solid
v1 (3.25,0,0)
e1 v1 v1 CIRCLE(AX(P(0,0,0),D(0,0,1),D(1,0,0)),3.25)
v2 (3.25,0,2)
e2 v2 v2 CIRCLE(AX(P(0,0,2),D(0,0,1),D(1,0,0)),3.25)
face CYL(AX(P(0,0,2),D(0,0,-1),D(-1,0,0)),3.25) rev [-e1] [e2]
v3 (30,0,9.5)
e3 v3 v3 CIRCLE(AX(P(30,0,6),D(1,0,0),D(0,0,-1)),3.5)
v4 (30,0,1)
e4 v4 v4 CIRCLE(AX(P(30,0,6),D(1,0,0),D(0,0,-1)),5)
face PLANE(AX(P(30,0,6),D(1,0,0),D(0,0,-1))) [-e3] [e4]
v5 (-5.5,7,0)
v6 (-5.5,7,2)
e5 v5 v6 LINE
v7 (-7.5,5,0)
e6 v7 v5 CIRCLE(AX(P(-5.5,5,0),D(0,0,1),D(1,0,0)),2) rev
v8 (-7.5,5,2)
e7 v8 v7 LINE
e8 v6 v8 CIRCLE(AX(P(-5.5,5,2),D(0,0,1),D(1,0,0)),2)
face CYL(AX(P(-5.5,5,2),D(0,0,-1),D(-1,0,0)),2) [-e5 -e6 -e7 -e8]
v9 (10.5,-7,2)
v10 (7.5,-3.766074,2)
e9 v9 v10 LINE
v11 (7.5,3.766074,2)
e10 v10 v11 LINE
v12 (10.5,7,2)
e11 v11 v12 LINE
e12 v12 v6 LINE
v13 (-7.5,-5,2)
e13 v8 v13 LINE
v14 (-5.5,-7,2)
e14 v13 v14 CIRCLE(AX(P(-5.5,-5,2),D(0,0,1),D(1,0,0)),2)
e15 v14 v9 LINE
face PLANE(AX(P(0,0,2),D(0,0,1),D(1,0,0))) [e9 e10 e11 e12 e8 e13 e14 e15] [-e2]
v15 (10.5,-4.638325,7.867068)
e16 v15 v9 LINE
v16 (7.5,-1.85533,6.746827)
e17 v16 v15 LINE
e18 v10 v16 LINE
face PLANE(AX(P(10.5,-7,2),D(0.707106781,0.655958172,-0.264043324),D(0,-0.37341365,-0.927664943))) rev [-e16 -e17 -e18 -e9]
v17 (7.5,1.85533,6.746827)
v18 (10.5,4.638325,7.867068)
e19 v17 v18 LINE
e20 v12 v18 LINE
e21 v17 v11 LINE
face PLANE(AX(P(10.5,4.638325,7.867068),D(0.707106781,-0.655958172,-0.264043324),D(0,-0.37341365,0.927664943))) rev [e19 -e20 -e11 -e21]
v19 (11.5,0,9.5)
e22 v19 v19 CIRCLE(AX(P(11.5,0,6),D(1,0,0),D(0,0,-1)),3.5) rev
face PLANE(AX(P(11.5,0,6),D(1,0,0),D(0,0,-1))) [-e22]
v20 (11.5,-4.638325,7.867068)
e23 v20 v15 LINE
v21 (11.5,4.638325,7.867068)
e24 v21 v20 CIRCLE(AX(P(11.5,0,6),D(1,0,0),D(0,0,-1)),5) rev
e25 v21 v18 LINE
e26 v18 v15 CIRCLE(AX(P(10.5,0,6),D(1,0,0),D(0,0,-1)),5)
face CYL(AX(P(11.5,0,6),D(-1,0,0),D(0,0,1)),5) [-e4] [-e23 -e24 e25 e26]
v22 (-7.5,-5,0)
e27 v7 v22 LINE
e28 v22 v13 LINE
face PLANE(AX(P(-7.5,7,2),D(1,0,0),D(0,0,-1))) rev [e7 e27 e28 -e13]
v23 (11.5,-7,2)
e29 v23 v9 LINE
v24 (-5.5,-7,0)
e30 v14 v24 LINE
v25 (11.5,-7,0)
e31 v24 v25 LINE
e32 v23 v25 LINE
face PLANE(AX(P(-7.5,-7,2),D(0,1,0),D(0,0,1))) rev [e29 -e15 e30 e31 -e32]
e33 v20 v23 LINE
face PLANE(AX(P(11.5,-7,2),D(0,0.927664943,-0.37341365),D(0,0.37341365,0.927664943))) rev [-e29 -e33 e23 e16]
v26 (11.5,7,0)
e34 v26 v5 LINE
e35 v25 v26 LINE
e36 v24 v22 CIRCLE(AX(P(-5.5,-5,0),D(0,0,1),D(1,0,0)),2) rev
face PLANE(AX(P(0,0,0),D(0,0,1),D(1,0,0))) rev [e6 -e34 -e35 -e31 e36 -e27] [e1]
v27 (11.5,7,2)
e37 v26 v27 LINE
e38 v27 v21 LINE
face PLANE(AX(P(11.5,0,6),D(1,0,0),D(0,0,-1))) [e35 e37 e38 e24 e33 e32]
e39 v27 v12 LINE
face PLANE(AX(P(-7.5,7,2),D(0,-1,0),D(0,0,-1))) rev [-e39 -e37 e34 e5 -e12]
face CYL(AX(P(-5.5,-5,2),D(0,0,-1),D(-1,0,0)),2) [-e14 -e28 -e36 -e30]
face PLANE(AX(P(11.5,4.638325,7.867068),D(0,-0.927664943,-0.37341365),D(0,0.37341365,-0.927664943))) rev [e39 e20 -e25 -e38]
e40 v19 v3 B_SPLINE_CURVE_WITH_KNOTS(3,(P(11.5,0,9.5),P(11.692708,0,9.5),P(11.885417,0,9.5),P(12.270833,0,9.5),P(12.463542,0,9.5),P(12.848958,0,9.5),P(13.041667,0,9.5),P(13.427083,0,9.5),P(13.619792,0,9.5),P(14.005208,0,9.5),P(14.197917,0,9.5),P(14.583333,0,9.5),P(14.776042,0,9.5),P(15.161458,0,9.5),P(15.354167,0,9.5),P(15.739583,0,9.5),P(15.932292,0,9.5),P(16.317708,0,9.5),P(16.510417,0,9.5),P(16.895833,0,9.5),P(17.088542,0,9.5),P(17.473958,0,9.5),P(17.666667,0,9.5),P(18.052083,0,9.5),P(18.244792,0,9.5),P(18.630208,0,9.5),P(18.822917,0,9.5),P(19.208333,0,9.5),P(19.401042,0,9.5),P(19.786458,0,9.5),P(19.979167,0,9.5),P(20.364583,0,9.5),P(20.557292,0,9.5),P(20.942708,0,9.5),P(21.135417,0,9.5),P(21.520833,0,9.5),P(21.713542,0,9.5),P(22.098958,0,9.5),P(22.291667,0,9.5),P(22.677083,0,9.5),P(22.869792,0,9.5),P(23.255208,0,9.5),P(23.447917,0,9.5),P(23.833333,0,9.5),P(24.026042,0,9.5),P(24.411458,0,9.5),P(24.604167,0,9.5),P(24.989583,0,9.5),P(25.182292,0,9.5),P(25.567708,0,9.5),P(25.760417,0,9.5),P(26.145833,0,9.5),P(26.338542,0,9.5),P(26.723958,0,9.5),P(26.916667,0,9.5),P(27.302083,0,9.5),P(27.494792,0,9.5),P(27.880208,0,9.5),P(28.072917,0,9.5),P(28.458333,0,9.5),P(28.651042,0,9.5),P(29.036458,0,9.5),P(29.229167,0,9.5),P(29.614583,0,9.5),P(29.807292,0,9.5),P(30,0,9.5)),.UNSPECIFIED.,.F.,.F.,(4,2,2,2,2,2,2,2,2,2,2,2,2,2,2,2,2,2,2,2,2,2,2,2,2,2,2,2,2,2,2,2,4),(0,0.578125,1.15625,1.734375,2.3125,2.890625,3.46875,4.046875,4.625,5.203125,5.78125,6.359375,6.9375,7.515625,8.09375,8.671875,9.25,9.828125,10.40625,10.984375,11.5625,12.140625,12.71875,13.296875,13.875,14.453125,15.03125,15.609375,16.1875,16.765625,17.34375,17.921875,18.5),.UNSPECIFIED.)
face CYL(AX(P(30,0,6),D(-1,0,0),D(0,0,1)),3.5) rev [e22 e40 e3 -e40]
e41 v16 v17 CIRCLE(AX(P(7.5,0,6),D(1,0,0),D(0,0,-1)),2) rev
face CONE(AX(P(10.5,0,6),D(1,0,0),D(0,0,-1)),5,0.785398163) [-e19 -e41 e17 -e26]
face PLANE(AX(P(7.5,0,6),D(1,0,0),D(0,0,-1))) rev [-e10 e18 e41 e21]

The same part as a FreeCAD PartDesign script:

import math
import FreeCAD as App
import Part
import Sketcher
Q = App.Units.Quantity


def edges_at(feature, points):
    """Names of the edges that pass closest to the given points."""
    edges = feature.Shape.Edges
    near = lambda p: min(range(len(edges)), key=lambda i: edges[i].distToShape(Part.Vertex(*p))[0])
    return sorted({f"Edge{near(p) + 1}" for p in points})

doc = App.newDocument("Part")
params = doc.addObject("Spreadsheet::Sheet", "Params")
for row, (alias, value) in enumerate([
    ("sketch1_diameter", "6.5 mm"),
    ("sketch1_width", "15 mm"),
    ("sketch1_height", "14 mm"),
    ("pad1_length", "2 mm"),
    ("sketch2_diameter", "10 mm"),
    ("sketch2_diameter2", "7 mm"),
    ("pad2_length", "22.5 mm"),
    ("sketch3_radius", "5 mm"),
    ("sketch3_width", "14 mm"),
    ("sketch3_height", "2 mm"),
    ("pad3_length", "4 mm"),
    ("chamfer_size", "3 mm"),
    ("fillet_radius", "2 mm"),
], start=1):
    params.set(f"A{row}", alias)
    params.set(f"B{row}", "=" + value)
    params.setAlias(f"B{row}", alias)

body = doc.addObject("PartDesign::Body", "Body")

sketch1 = body.newObject("Sketcher::SketchObject", "Sketch")
sketch1.AttachmentSupport = (doc.getObject("XY_Plane"), [""])
sketch1.MapMode = "FlatFace"
sketch1.addGeometry([
    Part.LineSegment(App.Vector(-7.5, 7, 0), App.Vector(-7.5, -7, 0)),
    Part.LineSegment(App.Vector(-7.5, -7, 0), App.Vector(7.5, -7, 0)),
    Part.LineSegment(App.Vector(7.5, -7, 0), App.Vector(7.5, 7, 0)),
    Part.LineSegment(App.Vector(7.5, 7, 0), App.Vector(-7.5, 7, 0)),
    Part.Circle(App.Vector(0, 0, 0), App.Vector(0, 0, 1), 3.25),
], False)
sketch1.addConstraint([
    Sketcher.Constraint("Coincident", 0, 2, 1, 1),
    Sketcher.Constraint("Coincident", 1, 2, 2, 1),
    Sketcher.Constraint("Coincident", 2, 2, 3, 1),
    Sketcher.Constraint("Coincident", 3, 2, 0, 1),
    Sketcher.Constraint("Vertical", 0),
    Sketcher.Constraint("Horizontal", 1),
    Sketcher.Constraint("Vertical", 2),
    Sketcher.Constraint("Horizontal", 3),
    Sketcher.Constraint("Coincident", 4, 3, -1, 1),
    Sketcher.Constraint("Symmetric", 0, 2, 2, 2, -1, 1),
    Sketcher.Constraint("Diameter", 4, Q("6.5 mm")),
    Sketcher.Constraint("DistanceX", 1, 1, 1, 2, Q("15 mm")),
    Sketcher.Constraint("DistanceY", 0, 2, 0, 1, Q("14 mm")),
])
sketch1.setExpression("Constraints[10]", "Params.sketch1_diameter")
sketch1.setExpression("Constraints[11]", "Params.sketch1_width")
sketch1.setExpression("Constraints[12]", "Params.sketch1_height")
pad1 = body.newObject("PartDesign::Pad", "Pad")
pad1.Profile = sketch1
pad1.setExpression("Length", "Params.pad1_length")
body2 = doc.addObject("PartDesign::Body", "Body001")

sketch2 = body2.newObject("Sketcher::SketchObject", "Sketch001")
sketch2.AttachmentSupport = (doc.getObject("YZ_Plane001"), [""])
sketch2.MapMode = "FlatFace"
sketch2.AttachmentOffset = App.Placement(App.Vector(0, 0, 7.5), App.Rotation())
sketch2.addGeometry([
    Part.Circle(App.Vector(0, 6, 0), App.Vector(0, 0, 1), 5),
    Part.Circle(App.Vector(0, 6, 0), App.Vector(0, 0, 1), 3.5),
], False)
sketch2.addConstraint([
    Sketcher.Constraint("Coincident", 1, 3, 0, 3),
    Sketcher.Constraint("PointOnObject", 0, 3, -2),
    Sketcher.Constraint("Diameter", 0, Q("10 mm")),
    Sketcher.Constraint("Diameter", 1, Q("7 mm")),
    Sketcher.Constraint("DistanceY", -1, 1, 0, 3, Q("6 mm")),
])
sketch2.setExpression("Constraints[2]", "Params.sketch2_diameter")
sketch2.setExpression("Constraints[3]", "Params.sketch2_diameter2")
pad2 = body2.newObject("PartDesign::Pad", "Pad001")
pad2.Profile = sketch2
pad2.setExpression("Length", "Params.pad2_length")
doc.recompute()

boolean = body.newObject("PartDesign::Boolean", "Boolean")
boolean.Type = "Fuse"
boolean.addObjects([body2])

sketch3 = body.newObject("Sketcher::SketchObject", "Sketch002")
sketch3.AttachmentSupport = (doc.getObject("YZ_Plane"), [""])
sketch3.MapMode = "FlatFace"
sketch3.AttachmentOffset = App.Placement(App.Vector(0, 0, 7.5), App.Rotation())
sketch3.addGeometry([
    Part.LineSegment(App.Vector(7, 2, 0), App.Vector(4.638325, 7.867068, 0)),
    Part.ArcOfCircle(Part.Circle(App.Vector(0, 6, 0), App.Vector(0, 0, 1), 5), math.radians(21.926301), math.radians(158.073699)),
    Part.LineSegment(App.Vector(-4.638325, 7.867068, 0), App.Vector(-7, 2, 0)),
    Part.LineSegment(App.Vector(-7, 2, 0), App.Vector(-7, 0, 0)),
    Part.LineSegment(App.Vector(-7, 0, 0), App.Vector(7, 0, 0)),
    Part.LineSegment(App.Vector(7, 0, 0), App.Vector(7, 2, 0)),
], False)
sketch3.addConstraint([
    Sketcher.Constraint("Tangent", 0, 2, 1, 1),
    Sketcher.Constraint("Tangent", 1, 2, 2, 1),
    Sketcher.Constraint("Coincident", 2, 2, 3, 1),
    Sketcher.Constraint("Coincident", 3, 2, 4, 1),
    Sketcher.Constraint("Coincident", 4, 2, 5, 1),
    Sketcher.Constraint("Coincident", 5, 2, 0, 1),
    Sketcher.Constraint("Vertical", 3),
    Sketcher.Constraint("Horizontal", 4),
    Sketcher.Constraint("Vertical", 5),
    Sketcher.Constraint("Symmetric", 3, 2, 4, 2, -1, 1),
    Sketcher.Constraint("Symmetric", 0, 2, 1, 2, -2),
    Sketcher.Constraint("Radius", 1, Q("5 mm")),
    Sketcher.Constraint("DistanceX", 4, 1, 4, 2, Q("14 mm")),
    Sketcher.Constraint("DistanceY", 3, 2, 3, 1, Q("2 mm")),
    Sketcher.Constraint("DistanceY", -1, 1, 1, 3, Q("6 mm")),
])
sketch3.setExpression("Constraints[11]", "Params.sketch3_radius")
sketch3.setExpression("Constraints[12]", "Params.sketch3_width")
sketch3.setExpression("Constraints[13]", "Params.sketch3_height")
pad3 = body.newObject("PartDesign::Pad", "Pad002")
pad3.Profile = sketch3
pad3.setExpression("Length", "Params.pad3_length")
doc.recompute()

chamfer = body.newObject("PartDesign::Chamfer", "Chamfer")
chamfer.Base = (pad3, edges_at(pad3, [(7.5, -2.799, 10.143), (7.5, -5.819, 4.934), (7.5, 5.819, 4.934)]))
chamfer.setExpression("Size", "Params.chamfer_size")
doc.recompute()

fillet = body.newObject("PartDesign::Fillet", "Fillet")
fillet.Base = (chamfer, edges_at(chamfer, [(-7.5, 7, 1), (-7.5, -7, 1)]))
fillet.setExpression("Radius", "Params.fillet_radius")

doc.recompute()
